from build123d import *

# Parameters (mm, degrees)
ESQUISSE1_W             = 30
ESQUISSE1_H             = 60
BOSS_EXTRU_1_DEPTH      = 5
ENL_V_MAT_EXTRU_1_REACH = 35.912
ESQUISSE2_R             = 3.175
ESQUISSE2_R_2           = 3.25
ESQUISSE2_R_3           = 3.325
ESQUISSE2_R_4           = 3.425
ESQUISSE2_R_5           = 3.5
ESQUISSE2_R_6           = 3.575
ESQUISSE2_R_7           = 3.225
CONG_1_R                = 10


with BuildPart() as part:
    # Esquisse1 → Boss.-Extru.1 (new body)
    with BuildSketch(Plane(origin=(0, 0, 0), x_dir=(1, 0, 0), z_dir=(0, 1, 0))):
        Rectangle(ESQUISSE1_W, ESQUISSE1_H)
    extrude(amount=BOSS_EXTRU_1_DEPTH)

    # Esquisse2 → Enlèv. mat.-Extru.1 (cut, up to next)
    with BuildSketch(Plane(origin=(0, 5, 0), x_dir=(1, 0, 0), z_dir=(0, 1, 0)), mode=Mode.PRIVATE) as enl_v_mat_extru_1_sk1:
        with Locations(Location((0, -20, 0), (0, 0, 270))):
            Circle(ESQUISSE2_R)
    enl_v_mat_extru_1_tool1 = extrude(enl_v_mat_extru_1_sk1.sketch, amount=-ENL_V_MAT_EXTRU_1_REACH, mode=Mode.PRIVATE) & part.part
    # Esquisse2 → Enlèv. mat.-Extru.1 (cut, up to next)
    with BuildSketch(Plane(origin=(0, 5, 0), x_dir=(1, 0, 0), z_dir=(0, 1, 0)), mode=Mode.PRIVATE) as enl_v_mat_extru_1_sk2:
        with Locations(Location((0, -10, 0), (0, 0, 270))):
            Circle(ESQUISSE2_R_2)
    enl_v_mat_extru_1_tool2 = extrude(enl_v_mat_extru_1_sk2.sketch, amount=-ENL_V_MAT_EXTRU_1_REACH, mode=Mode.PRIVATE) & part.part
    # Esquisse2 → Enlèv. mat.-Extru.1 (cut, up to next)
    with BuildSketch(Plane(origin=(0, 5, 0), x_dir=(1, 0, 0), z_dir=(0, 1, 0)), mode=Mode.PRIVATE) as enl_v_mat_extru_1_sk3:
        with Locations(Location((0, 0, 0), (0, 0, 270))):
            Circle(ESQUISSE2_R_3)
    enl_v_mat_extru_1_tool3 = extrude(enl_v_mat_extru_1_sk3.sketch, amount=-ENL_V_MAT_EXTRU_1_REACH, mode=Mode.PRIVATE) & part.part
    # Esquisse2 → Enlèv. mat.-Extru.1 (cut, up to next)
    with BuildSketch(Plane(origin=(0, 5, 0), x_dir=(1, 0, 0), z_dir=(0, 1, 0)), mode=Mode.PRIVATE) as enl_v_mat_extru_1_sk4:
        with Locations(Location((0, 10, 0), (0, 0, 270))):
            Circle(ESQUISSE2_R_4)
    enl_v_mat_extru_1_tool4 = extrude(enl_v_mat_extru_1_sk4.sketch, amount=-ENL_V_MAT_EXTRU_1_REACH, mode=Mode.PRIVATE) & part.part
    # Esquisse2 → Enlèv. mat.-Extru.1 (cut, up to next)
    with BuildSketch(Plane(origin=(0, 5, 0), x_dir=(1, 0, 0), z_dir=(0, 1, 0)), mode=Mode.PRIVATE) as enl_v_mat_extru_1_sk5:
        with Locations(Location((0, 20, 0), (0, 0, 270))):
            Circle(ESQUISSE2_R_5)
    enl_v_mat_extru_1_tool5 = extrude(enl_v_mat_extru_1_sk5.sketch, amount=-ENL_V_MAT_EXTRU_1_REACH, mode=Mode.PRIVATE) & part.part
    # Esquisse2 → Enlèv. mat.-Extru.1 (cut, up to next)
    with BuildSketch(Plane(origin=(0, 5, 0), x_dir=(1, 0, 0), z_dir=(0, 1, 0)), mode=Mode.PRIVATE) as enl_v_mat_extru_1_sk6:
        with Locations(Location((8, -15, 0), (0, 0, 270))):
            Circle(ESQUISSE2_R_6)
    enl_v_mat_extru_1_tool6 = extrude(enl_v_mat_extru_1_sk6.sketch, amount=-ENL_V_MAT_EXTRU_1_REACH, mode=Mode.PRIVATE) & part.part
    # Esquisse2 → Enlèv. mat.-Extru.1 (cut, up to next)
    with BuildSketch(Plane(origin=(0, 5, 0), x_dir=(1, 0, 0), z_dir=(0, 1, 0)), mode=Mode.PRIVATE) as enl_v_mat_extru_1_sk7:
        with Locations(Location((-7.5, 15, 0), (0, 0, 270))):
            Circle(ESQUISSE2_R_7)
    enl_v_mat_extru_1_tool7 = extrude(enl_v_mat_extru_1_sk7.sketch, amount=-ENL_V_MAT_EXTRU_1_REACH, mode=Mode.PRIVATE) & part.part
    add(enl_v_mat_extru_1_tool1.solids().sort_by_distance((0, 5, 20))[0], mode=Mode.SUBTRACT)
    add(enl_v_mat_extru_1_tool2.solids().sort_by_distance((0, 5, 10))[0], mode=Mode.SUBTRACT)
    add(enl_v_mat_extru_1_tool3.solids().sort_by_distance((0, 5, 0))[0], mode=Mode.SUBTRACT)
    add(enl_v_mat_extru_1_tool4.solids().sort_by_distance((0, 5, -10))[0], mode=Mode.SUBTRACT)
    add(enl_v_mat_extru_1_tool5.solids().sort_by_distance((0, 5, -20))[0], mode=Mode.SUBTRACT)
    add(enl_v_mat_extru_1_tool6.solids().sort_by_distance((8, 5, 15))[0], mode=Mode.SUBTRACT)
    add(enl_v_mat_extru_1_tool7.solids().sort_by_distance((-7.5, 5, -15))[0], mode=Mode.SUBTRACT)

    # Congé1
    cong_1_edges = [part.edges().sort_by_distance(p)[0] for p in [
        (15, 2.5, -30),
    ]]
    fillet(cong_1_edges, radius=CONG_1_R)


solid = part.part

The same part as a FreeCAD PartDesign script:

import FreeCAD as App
import Part
import Sketcher
Q = App.Units.Quantity


def edges_at(feature, points):
    """Names of the edges that pass closest to the given points."""
    edges = feature.Shape.Edges
    near = lambda p: min(range(len(edges)), key=lambda i: edges[i].distToShape(Part.Vertex(*p))[0])
    return sorted({f"Edge{near(p) + 1}" for p in points})


def add_polygon(sketch, points):
    """Adds a closed chain of lines whose ends are joined by coincident constraints."""
    first, n = sketch.GeometryCount, len(points)
    for a, b in zip(points, points[1:] + points[:1]):
        sketch.addGeometry(Part.LineSegment(App.Vector(*a, 0), App.Vector(*b, 0)), False)
    for i in range(n):
        sketch.addConstraint(Sketcher.Constraint("Coincident", first + i, 2, first + (i + 1) % n, 1))

doc = App.newDocument("Part")
body = doc.addObject("PartDesign::Body", "Body")

# Sketch on XZ plane
sketch1 = doc.addObject("Sketcher::SketchObject", "Sketch")
body.addObject(sketch1)
sketch1.AttachmentSupport = (doc.XZ_Plane, [""])
sketch1.MapMode = "FlatFace"
add_polygon(sketch1, [(-15, -30), (-15, 30), (15, 30), (15, -30)])  # lines 0-3
sketch1.addConstraint(Sketcher.Constraint("Vertical", 0))
sketch1.addConstraint(Sketcher.Constraint("Horizontal", 1))
sketch1.addConstraint(Sketcher.Constraint("Vertical", 2))
sketch1.addConstraint(Sketcher.Constraint("Horizontal", 3))
sketch1.addConstraint(Sketcher.Constraint("Symmetric", 0, 2, 2, 2, -1, 1))
sketch1.addConstraint(Sketcher.Constraint("DistanceX", 1, 1, 1, 2, Q("30 mm")))
sketch1.addConstraint(Sketcher.Constraint("DistanceY", 0, 1, 0, 2, Q("60 mm")))
pad1 = doc.addObject("PartDesign::Pad", "Pad")
body.addObject(pad1)
pad1.Profile = sketch1
pad1.Length = 5
pad1.Reversed = True

# Sketch on XZ plane
sketch2 = doc.addObject("Sketcher::SketchObject", "Sketch001")
body.addObject(sketch2)
sketch2.AttachmentSupport = (doc.XZ_Plane, [""])
sketch2.MapMode = "FlatFace"
sketch2.AttachmentOffset = App.Placement(App.Vector(0, 0, -5), App.Rotation())
sketch2.addGeometry(Part.Circle(App.Vector(0, 20, 0), App.Vector(0, 0, 1), 3.2), False)
sketch2.addConstraint(Sketcher.Constraint("PointOnObject", 0, 3, -2))
sketch2.addConstraint(Sketcher.Constraint("Diameter", 0, Q("6.35 mm")))
sketch2.addConstraint(Sketcher.Constraint("DistanceY", -1, 1, 0, 3, Q("20 mm")))
pocket1 = doc.addObject("PartDesign::Pocket", "Pocket")
body.addObject(pocket1)
pocket1.Profile = sketch2
pocket1.Type = "UpToFirst"
pocket1.Reversed = True

# Sketch on XZ plane
sketch3 = doc.addObject("Sketcher::SketchObject", "Sketch002")
body.addObject(sketch3)
sketch3.AttachmentSupport = (doc.XZ_Plane, [""])
sketch3.MapMode = "FlatFace"
sketch3.AttachmentOffset = App.Placement(App.Vector(0, 0, -5), App.Rotation())
sketch3.addGeometry(Part.Circle(App.Vector(0, 10, 0), App.Vector(0, 0, 1), 3.2), False)
sketch3.addConstraint(Sketcher.Constraint("PointOnObject", 0, 3, -2))
sketch3.addConstraint(Sketcher.Constraint("Diameter", 0, Q("6.5 mm")))
sketch3.addConstraint(Sketcher.Constraint("DistanceY", -1, 1, 0, 3, Q("10 mm")))
pocket2 = doc.addObject("PartDesign::Pocket", "Pocket001")
body.addObject(pocket2)
pocket2.Profile = sketch3
pocket2.Type = "UpToFirst"
pocket2.Reversed = True

# Sketch on XZ plane
sketch4 = doc.addObject("Sketcher::SketchObject", "Sketch003")
body.addObject(sketch4)
sketch4.AttachmentSupport = (doc.XZ_Plane, [""])
sketch4.MapMode = "FlatFace"
sketch4.AttachmentOffset = App.Placement(App.Vector(0, 0, -5), App.Rotation())
sketch4.addGeometry(Part.Circle(App.Vector(0, 0, 0), App.Vector(0, 0, 1), 3.3), False)
sketch4.addConstraint(Sketcher.Constraint("Coincident", 0, 3, -1, 1))
sketch4.addConstraint(Sketcher.Constraint("Diameter", 0, Q("6.65 mm")))
pocket3 = doc.addObject("PartDesign::Pocket", "Pocket002")
body.addObject(pocket3)
pocket3.Profile = sketch4
pocket3.Type = "UpToFirst"
pocket3.Reversed = True

# Sketch on XZ plane
sketch5 = doc.addObject("Sketcher::SketchObject", "Sketch004")
body.addObject(sketch5)
sketch5.AttachmentSupport = (doc.XZ_Plane, [""])
sketch5.MapMode = "FlatFace"
sketch5.AttachmentOffset = App.Placement(App.Vector(0, 0, -5), App.Rotation())
sketch5.addGeometry(Part.Circle(App.Vector(0, -10, 0), App.Vector(0, 0, 1), 3.4), False)
sketch5.addConstraint(Sketcher.Constraint("PointOnObject", 0, 3, -2))
sketch5.addConstraint(Sketcher.Constraint("Diameter", 0, Q("6.85 mm")))
sketch5.addConstraint(Sketcher.Constraint("DistanceY", 0, 3, -1, 1, Q("10 mm")))
pocket4 = doc.addObject("PartDesign::Pocket", "Pocket003")
body.addObject(pocket4)
pocket4.Profile = sketch5
pocket4.Type = "UpToFirst"
pocket4.Reversed = True

# Sketch on XZ plane
sketch6 = doc.addObject("Sketcher::SketchObject", "Sketch005")
body.addObject(sketch6)
sketch6.AttachmentSupport = (doc.XZ_Plane, [""])
sketch6.MapMode = "FlatFace"
sketch6.AttachmentOffset = App.Placement(App.Vector(0, 0, -5), App.Rotation())
sketch6.addGeometry(Part.Circle(App.Vector(0, -20, 0), App.Vector(0, 0, 1), 3.5), False)
sketch6.addConstraint(Sketcher.Constraint("PointOnObject", 0, 3, -2))
sketch6.addConstraint(Sketcher.Constraint("Diameter", 0, Q("7 mm")))
sketch6.addConstraint(Sketcher.Constraint("DistanceY", 0, 3, -1, 1, Q("20 mm")))
pocket5 = doc.addObject("PartDesign::Pocket", "Pocket004")
body.addObject(pocket5)
pocket5.Profile = sketch6
pocket5.Type = "UpToFirst"
pocket5.Reversed = True

# Sketch on XZ plane
sketch7 = doc.addObject("Sketcher::SketchObject", "Sketch006")
body.addObject(sketch7)
sketch7.AttachmentSupport = (doc.XZ_Plane, [""])
sketch7.MapMode = "FlatFace"
sketch7.AttachmentOffset = App.Placement(App.Vector(0, 0, -5), App.Rotation())
sketch7.addGeometry(Part.Circle(App.Vector(8, 15, 0), App.Vector(0, 0, 1), 3.6), False)
sketch7.addConstraint(Sketcher.Constraint("Diameter", 0, Q("7.15 mm")))
sketch7.addConstraint(Sketcher.Constraint("DistanceX", -1, 1, 0, 3, Q("8 mm")))
sketch7.addConstraint(Sketcher.Constraint("DistanceY", -1, 1, 0, 3, Q("15 mm")))
pocket6 = doc.addObject("PartDesign::Pocket", "Pocket005")
body.addObject(pocket6)
pocket6.Profile = sketch7
pocket6.Type = "UpToFirst"
pocket6.Reversed = True

# Sketch on XZ plane
sketch8 = doc.addObject("Sketcher::SketchObject", "Sketch007")
body.addObject(sketch8)
sketch8.AttachmentSupport = (doc.XZ_Plane, [""])
sketch8.MapMode = "FlatFace"
sketch8.AttachmentOffset = App.Placement(App.Vector(0, 0, -5), App.Rotation())
sketch8.addGeometry(Part.Circle(App.Vector(-7.5, -15, 0), App.Vector(0, 0, 1), 3.2), False)
sketch8.addConstraint(Sketcher.Constraint("Diameter", 0, Q("6.45 mm")))
sketch8.addConstraint(Sketcher.Constraint("DistanceY", 0, 3, -1, 1, Q("15 mm")))
sketch8.addConstraint(Sketcher.Constraint("DistanceX", 0, 3, -1, 1, Q("7.5 mm")))
pocket7 = doc.addObject("PartDesign::Pocket", "Pocket006")
body.addObject(pocket7)
pocket7.Profile = sketch8
pocket7.Type = "UpToFirst"
pocket7.Reversed = True
doc.recompute()

fillet = doc.addObject("PartDesign::Fillet", "Fillet")
body.addObject(fillet)
fillet.Base = (pocket7, edges_at(pocket7, [(15, 2.5, -30)]))
fillet.Radius = 10

doc.recompute()
